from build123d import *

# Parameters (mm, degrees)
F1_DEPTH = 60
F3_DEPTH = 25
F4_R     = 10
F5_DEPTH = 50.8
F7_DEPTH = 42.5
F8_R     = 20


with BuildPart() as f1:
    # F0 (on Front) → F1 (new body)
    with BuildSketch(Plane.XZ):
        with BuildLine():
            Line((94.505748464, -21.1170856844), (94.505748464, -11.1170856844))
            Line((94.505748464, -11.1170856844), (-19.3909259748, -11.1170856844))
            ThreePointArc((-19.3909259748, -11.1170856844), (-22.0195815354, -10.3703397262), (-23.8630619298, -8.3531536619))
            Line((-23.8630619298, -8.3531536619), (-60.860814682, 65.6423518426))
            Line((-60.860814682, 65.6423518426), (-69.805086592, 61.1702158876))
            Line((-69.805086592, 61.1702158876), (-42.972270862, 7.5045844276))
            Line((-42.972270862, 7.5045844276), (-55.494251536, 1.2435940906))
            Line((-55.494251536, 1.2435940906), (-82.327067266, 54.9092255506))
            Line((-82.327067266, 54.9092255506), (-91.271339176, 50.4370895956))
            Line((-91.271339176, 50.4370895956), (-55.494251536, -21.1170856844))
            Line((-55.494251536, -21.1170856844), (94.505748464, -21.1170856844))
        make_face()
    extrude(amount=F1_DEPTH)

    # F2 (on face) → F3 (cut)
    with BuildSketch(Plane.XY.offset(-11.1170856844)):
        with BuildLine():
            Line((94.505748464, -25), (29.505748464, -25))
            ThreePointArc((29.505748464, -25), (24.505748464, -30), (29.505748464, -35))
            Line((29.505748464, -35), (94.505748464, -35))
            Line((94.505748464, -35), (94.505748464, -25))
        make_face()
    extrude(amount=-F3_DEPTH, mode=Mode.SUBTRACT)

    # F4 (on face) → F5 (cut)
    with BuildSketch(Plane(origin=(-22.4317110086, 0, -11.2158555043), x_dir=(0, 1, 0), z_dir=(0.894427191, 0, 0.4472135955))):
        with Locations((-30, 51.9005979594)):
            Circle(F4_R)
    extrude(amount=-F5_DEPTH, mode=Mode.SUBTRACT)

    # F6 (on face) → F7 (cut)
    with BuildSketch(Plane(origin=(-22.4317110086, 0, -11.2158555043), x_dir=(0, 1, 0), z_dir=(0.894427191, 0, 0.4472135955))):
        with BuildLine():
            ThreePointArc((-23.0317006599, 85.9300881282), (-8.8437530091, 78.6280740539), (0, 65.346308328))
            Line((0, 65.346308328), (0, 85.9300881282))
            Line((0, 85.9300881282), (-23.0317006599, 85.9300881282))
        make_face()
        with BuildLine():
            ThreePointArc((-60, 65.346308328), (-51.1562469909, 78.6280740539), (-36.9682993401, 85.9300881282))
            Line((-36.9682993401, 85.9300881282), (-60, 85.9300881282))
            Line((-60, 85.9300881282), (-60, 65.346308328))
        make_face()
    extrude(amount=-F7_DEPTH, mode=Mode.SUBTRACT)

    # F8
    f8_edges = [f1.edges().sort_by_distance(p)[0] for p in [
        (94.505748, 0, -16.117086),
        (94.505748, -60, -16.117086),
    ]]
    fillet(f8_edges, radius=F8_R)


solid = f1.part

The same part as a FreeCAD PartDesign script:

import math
import FreeCAD as App
import Part
import Sketcher


def edges_at(feature, points):
    """Names of the edges that pass closest to the given points."""
    edges = feature.Shape.Edges
    near = lambda p: min(range(len(edges)), key=lambda i: edges[i].distToShape(Part.Vertex(*p))[0])
    return sorted({f"Edge{near(p) + 1}" for p in points})

doc = App.newDocument("Part")
body = doc.addObject("PartDesign::Body", "Body")

# Sketch on XZ plane
sketch1 = body.newObject("Sketcher::SketchObject", "Sketch")
sketch1.AttachmentSupport = (doc.getObject("XZ_Plane"), [""])
sketch1.MapMode = "FlatFace"
sketch1.addGeometry([
    Part.LineSegment(App.Vector(95, -21, 0), App.Vector(95, -11, 0)),  # 0
    Part.LineSegment(App.Vector(95, -11, 0), App.Vector(-19, -11, 0)),  # 1
    Part.ArcOfCircle(Part.Circle(App.Vector(-19, -6, 0), App.Vector(0, 0, 1), 5), math.radians(-153), math.radians(-90)),  # 2
    Part.LineSegment(App.Vector(-24, -8, 0), App.Vector(-61, 66, 0)),  # 3
    Part.LineSegment(App.Vector(-61, 66, 0), App.Vector(-70, 61, 0)),  # 4
    Part.LineSegment(App.Vector(-70, 61, 0), App.Vector(-43, 8, 0)),  # 5
    Part.LineSegment(App.Vector(-43, 8, 0), App.Vector(-55, 1, 0)),  # 6
    Part.LineSegment(App.Vector(-55, 1, 0), App.Vector(-82, 55, 0)),  # 7
    Part.LineSegment(App.Vector(-82, 55, 0), App.Vector(-91, 50, 0)),  # 8
    Part.LineSegment(App.Vector(-91, 50, 0), App.Vector(-55, -21, 0)),  # 9
    Part.LineSegment(App.Vector(-55, -21, 0), App.Vector(95, -21, 0)),  # 10
], False)
sketch1.addConstraint([
    Sketcher.Constraint("Coincident", 0, 2, 1, 1),
    Sketcher.Constraint("Tangent", 1, 2, 2, 2),
    Sketcher.Constraint("Tangent", 2, 1, 3, 1),
    Sketcher.Constraint("Coincident", 3, 2, 4, 1),
    Sketcher.Constraint("Coincident", 4, 2, 5, 1),
    Sketcher.Constraint("Coincident", 5, 2, 6, 1),
    Sketcher.Constraint("Coincident", 6, 2, 7, 1),
    Sketcher.Constraint("Coincident", 7, 2, 8, 1),
    Sketcher.Constraint("Coincident", 8, 2, 9, 1),
    Sketcher.Constraint("Coincident", 9, 2, 10, 1),
    Sketcher.Constraint("Coincident", 10, 2, 0, 1),
    Sketcher.Constraint("Vertical", 0),
    Sketcher.Constraint("Horizontal", 1),
    Sketcher.Constraint("Horizontal", 10),
    Sketcher.Constraint("Perpendicular", 3, 4),
    Sketcher.Constraint("Perpendicular", 4, 5),
    Sketcher.Constraint("Perpendicular", 5, 6),
    Sketcher.Constraint("Perpendicular", 6, 7),
    Sketcher.Constraint("Perpendicular", 7, 8),
    Sketcher.Constraint("Perpendicular", 8, 9),
    Sketcher.Constraint("Vertical", 6, 2, 9, 2),
    Sketcher.Constraint("Equal", 5, 7),
    Sketcher.Constraint("Equal", 4, 8),
    Sketcher.Constraint("Radius", 2, 5.0),
    Sketcher.Constraint("DistanceX", 10, 1, 10, 2, 150.0),
    Sketcher.Constraint("DistanceY", 0, 1, 0, 2, 10.0),
    Sketcher.Constraint("Distance", 4, 10.0),
    Sketcher.Constraint("Distance", 5, 60.0),
    Sketcher.Constraint("Distance", 6, 14.0),
    Sketcher.Constraint("Distance", 9, 80.0),
    Sketcher.Constraint("DistanceX", -1, 1, 0, 2, 94.505748),
    Sketcher.Constraint("DistanceY", -1, 1, 3, 2, 65.642352),
])
pad1 = body.newObject("PartDesign::Pad", "Pad")
pad1.Profile = sketch1
pad1.Length = 60

# Sketch on XY plane
sketch2 = body.newObject("Sketcher::SketchObject", "Sketch001")
sketch2.AttachmentSupport = (doc.getObject("XY_Plane"), [""])
sketch2.MapMode = "FlatFace"
sketch2.AttachmentOffset = App.Placement(App.Vector(0, 0, -11.117086), App.Rotation())
sketch2.addGeometry([
    Part.LineSegment(App.Vector(95, -25, 0), App.Vector(30, -25, 0)),
    Part.ArcOfCircle(Part.Circle(App.Vector(30, -30, 0), App.Vector(0, 0, 1), 5), math.radians(90), math.radians(270)),
    Part.LineSegment(App.Vector(30, -35, 0), App.Vector(95, -35, 0)),
    Part.LineSegment(App.Vector(95, -35, 0), App.Vector(95, -25, 0)),
], False)
sketch2.addConstraint([
    Sketcher.Constraint("Tangent", 0, 2, 1, 1),
    Sketcher.Constraint("Tangent", 1, 2, 2, 1),
    Sketcher.Constraint("Coincident", 2, 2, 3, 1),
    Sketcher.Constraint("Coincident", 3, 2, 0, 1),
    Sketcher.Constraint("Horizontal", 0),
    Sketcher.Constraint("Horizontal", 2),
    Sketcher.Constraint("Vertical", 3),
    Sketcher.Constraint("Radius", 1, 5.0),
    Sketcher.Constraint("DistanceX", 0, 2, 0, 1, 65.0),
    Sketcher.Constraint("DistanceY", 1, 3, -1, 1, 30.0),
    Sketcher.Constraint("DistanceX", -1, 1, 1, 3, 29.505748),
])
pocket1 = body.newObject("PartDesign::Pocket", "Pocket")
pocket1.Profile = sketch2
pocket1.Length = 25

# Sketch on an angled plane
sketch3 = body.newObject("Sketcher::SketchObject", "Sketch002")
sketch3.Placement = App.Placement(App.Vector(-22.431711, 0, -11.215856), App.Rotation(App.Vector(0, 1, 0), App.Vector(-0.447213595, 0, 0.894427191), App.Vector(0.894427191, 0, 0.447213595), "ZXY"))
sketch3.addGeometry(Part.Circle(App.Vector(-30, 52, 0), App.Vector(0, 0, 1), 10), False)
sketch3.addConstraint([
    Sketcher.Constraint("Diameter", 0, 20.0),
    Sketcher.Constraint("DistanceX", 0, 3, -1, 1, 30.0),
    Sketcher.Constraint("DistanceY", -1, 1, 0, 3, 51.900598),
])
pocket2 = body.newObject("PartDesign::Pocket", "Pocket001")
pocket2.Profile = sketch3
pocket2.Length = 50.8

# Sketch on an angled plane
sketch4 = body.newObject("Sketcher::SketchObject", "Sketch003")
sketch4.Placement = App.Placement(App.Vector(-22.431711, 0, -11.215856), App.Rotation(App.Vector(0, 1, 0), App.Vector(-0.447213595, 0, 0.894427191), App.Vector(0.894427191, 0, 0.447213595), "ZXY"))
sketch4.addGeometry([
    Part.ArcOfCircle(Part.Circle(App.Vector(-30, 55, 0), App.Vector(0, 0, 1), 32), math.radians(19), math.radians(77)),  # 0
    Part.LineSegment(App.Vector(0, 65, 0), App.Vector(0, 86, 0)),  # 1
    Part.LineSegment(App.Vector(0, 86, 0), App.Vector(-23, 86, 0)),  # 2
    Part.ArcOfCircle(Part.Circle(App.Vector(-30, 55, 0), App.Vector(0, 0, 1), 32), math.radians(103), math.radians(161)),  # 3
    Part.LineSegment(App.Vector(-37, 86, 0), App.Vector(-60, 86, 0)),  # 4
    Part.LineSegment(App.Vector(-60, 86, 0), App.Vector(-60, 65, 0)),  # 5
], False)
sketch4.addConstraint([
    Sketcher.Constraint("Coincident", 0, 1, 1, 1),
    Sketcher.Constraint("Coincident", 1, 2, 2, 1),
    Sketcher.Constraint("Coincident", 2, 2, 0, 2),
    Sketcher.Constraint("Coincident", 3, 1, 4, 1),
    Sketcher.Constraint("Coincident", 4, 2, 5, 1),
    Sketcher.Constraint("Coincident", 5, 2, 3, 2),
    Sketcher.Constraint("Vertical", 1),
    Sketcher.Constraint("Horizontal", 2),
    Sketcher.Constraint("Horizontal", 4),
    Sketcher.Constraint("Vertical", 5),
    Sketcher.Constraint("Coincident", 3, 3, 0, 3),
    Sketcher.Constraint("Equal", 0, 3),
    Sketcher.Constraint("PointOnObject", 0, 1, -2),
    Sketcher.Constraint("Horizontal", 2, 2, 3, 1),
    Sketcher.Constraint("Horizontal", 0, 1, 5, 2),
    Sketcher.Constraint("DistanceX", 0, 3, -1, 1, 30.0),
    Sketcher.Constraint("Radius", 0, 31.748419),
    Sketcher.Constraint("DistanceX", 2, 2, 2, 1, 23.031701),
    Sketcher.Constraint("DistanceY", -1, 1, 0, 1, 65.346308),
])
pocket3 = body.newObject("PartDesign::Pocket", "Pocket002")
pocket3.Profile = sketch4
pocket3.Length = 42.5
doc.recompute()

fillet = body.newObject("PartDesign::Fillet", "Fillet")
fillet.Base = (pocket3, edges_at(pocket3, [(94.506, 0, -16.117), (94.506, -60, -16.117)]))
fillet.Radius = 20

doc.recompute()
